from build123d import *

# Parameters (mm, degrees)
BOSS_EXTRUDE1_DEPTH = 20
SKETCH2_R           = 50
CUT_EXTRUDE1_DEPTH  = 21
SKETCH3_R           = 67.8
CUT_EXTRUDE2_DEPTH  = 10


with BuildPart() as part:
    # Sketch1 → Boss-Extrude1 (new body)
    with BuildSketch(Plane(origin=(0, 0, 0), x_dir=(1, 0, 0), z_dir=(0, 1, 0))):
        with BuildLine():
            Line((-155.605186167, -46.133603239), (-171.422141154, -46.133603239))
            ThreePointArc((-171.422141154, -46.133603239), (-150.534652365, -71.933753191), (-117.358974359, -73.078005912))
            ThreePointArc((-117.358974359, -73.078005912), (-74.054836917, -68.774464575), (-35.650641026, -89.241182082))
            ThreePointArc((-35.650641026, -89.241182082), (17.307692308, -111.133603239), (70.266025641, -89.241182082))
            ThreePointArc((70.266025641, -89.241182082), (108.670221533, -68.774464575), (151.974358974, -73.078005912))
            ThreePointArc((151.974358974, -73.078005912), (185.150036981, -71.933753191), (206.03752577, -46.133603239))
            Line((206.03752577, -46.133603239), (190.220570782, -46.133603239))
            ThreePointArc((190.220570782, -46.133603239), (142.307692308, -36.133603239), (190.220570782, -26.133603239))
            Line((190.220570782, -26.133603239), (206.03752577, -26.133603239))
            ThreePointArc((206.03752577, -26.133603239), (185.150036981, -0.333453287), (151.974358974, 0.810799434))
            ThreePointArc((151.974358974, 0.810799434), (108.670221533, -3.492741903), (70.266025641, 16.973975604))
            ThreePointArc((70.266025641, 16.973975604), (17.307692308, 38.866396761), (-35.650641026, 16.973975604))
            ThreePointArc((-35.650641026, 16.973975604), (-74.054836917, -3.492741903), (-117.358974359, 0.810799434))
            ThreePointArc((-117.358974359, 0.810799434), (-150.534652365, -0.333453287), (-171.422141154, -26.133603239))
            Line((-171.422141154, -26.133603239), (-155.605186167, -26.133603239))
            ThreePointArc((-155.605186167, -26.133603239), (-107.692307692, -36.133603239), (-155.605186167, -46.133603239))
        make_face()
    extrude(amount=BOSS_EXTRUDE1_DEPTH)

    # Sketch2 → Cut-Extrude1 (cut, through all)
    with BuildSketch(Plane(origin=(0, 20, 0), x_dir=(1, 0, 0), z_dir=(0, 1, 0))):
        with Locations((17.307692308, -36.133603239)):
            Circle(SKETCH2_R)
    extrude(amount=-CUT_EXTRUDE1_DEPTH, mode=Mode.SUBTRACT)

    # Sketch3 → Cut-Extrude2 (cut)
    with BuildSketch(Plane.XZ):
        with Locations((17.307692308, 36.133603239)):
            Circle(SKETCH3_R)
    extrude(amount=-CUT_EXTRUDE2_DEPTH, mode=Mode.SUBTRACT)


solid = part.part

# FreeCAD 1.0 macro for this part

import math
import FreeCAD as App
import Part
import Sketcher

V = App.Vector

doc = App.newDocument("Part")
body = doc.addObject("PartDesign::Body", "Body")

# Sketch on XZ plane
sketch1 = doc.addObject("Sketcher::SketchObject", "Sketch")
body.addObject(sketch1)
sketch1.AttachmentSupport = (doc.XZ_Plane, [""])
sketch1.MapMode = "FlatFace"
sketch1.addGeometry([
    Part.LineSegment(V(-155.605186, 46.133603, 0), V(-171.422141, 46.133603, 0)),  # 0
    Part.ArcOfCircle(Part.Circle(V(-132.692308, 36.133603, 0), V(0, 0, 1), 40), math.radians(67.45969), math.radians(165.522488)),  # 1
    Part.ArcOfCircle(Part.Circle(V(-88.608974, 142.348761, 0), V(0, 0, 1), 75), math.radians(-112.54031), math.radians(-45.080621)),  # 2
    Part.ArcOfCircle(Part.Circle(V(17.307692, 36.133603, 0), V(0, 0, 1), 75), math.radians(45.080621), math.radians(134.919379)),  # 3
    Part.ArcOfCircle(Part.Circle(V(123.224359, 142.348761, 0), V(0, 0, 1), 75), math.radians(-134.919379), math.radians(-67.45969)),  # 4
    Part.ArcOfCircle(Part.Circle(V(167.307692, 36.133603, 0), V(0, 0, 1), 40), math.radians(14.477512), math.radians(112.54031)),  # 5
    Part.LineSegment(V(206.037526, 46.133603, 0), V(190.220571, 46.133603, 0)),  # 6
    Part.ArcOfCircle(Part.Circle(V(167.307692, 36.133603, 0), V(0, 0, 1), 25), math.radians(23.578178), math.radians(336.421822)),  # 7
    Part.LineSegment(V(190.220571, 26.133603, 0), V(206.037526, 26.133603, 0)),  # 8
    Part.ArcOfCircle(Part.Circle(V(167.307692, 36.133603, 0), V(0, 0, 1), 40), math.radians(-112.54031), math.radians(-14.477512)),  # 9
    Part.ArcOfCircle(Part.Circle(V(123.224359, -70.081554, 0), V(0, 0, 1), 75), math.radians(67.45969), math.radians(134.919379)),  # 10
    Part.ArcOfCircle(Part.Circle(V(17.307692, 36.133603, 0), V(0, 0, 1), 75), math.radians(-134.919379), math.radians(-45.080621)),  # 11
    Part.ArcOfCircle(Part.Circle(V(-88.608974, -70.081554, 0), V(0, 0, 1), 75), math.radians(45.080621), math.radians(112.54031)),  # 12
    Part.ArcOfCircle(Part.Circle(V(-132.692308, 36.133603, 0), V(0, 0, 1), 40), math.radians(-165.522488), math.radians(-67.45969)),  # 13
    Part.LineSegment(V(-171.422141, 26.133603, 0), V(-155.605186, 26.133603, 0)),  # 14
    Part.ArcOfCircle(Part.Circle(V(-132.692308, 36.133603, 0), V(0, 0, 1), 25), math.radians(-156.421822), math.radians(156.421822)),  # 15
], False)
sketch1.addConstraint([
    Sketcher.Constraint("Coincident", 0, 2, 1, 2),
    Sketcher.Constraint("Tangent", 1, 1, 2, 1),
    Sketcher.Constraint("Tangent", 2, 2, 3, 2),
    Sketcher.Constraint("Tangent", 3, 1, 4, 1),
    Sketcher.Constraint("Tangent", 4, 2, 5, 2),
    Sketcher.Constraint("Coincident", 5, 1, 6, 1),
    Sketcher.Constraint("Coincident", 6, 2, 7, 1),
    Sketcher.Constraint("Coincident", 7, 2, 8, 1),
    Sketcher.Constraint("Coincident", 8, 2, 9, 2),
    Sketcher.Constraint("Tangent", 9, 1, 10, 1),
    Sketcher.Constraint("Tangent", 10, 2, 11, 2),
    Sketcher.Constraint("Tangent", 11, 1, 12, 1),
    Sketcher.Constraint("Tangent", 12, 2, 13, 2),
    Sketcher.Constraint("Coincident", 13, 1, 14, 1),
    Sketcher.Constraint("Coincident", 14, 2, 15, 1),
    Sketcher.Constraint("Coincident", 15, 2, 0, 1),
    Sketcher.Constraint("Horizontal", 0),
    Sketcher.Constraint("Horizontal", 6),
    Sketcher.Constraint("Horizontal", 8),
    Sketcher.Constraint("Horizontal", 14),
    Sketcher.Constraint("Coincident", 7, 3, 5, 3),
    Sketcher.Constraint("Coincident", 9, 3, 5, 3),
    Sketcher.Constraint("Coincident", 11, 3, 3, 3),
    Sketcher.Constraint("Coincident", 13, 3, 1, 3),
    Sketcher.Constraint("Coincident", 15, 3, 1, 3),
    Sketcher.Constraint("Equal", 2, 3),
    Sketcher.Constraint("Equal", 3, 4),
    Sketcher.Constraint("Equal", 1, 5),
    Sketcher.Constraint("Equal", 5, 9),
    Sketcher.Constraint("Equal", 4, 10),
    Sketcher.Constraint("Equal", 10, 11),
    Sketcher.Constraint("Equal", 11, 12),
    Sketcher.Constraint("Equal", 9, 13),
    Sketcher.Constraint("Equal", 7, 15),
    Sketcher.Constraint("Horizontal", 1, 3, 3, 3),
    Sketcher.Constraint("Horizontal", 2, 3, 4, 3),
    Sketcher.Constraint("Horizontal", 3, 3, 5, 3),
    Sketcher.Constraint("Horizontal", 0, 2, 5, 1),
    Sketcher.Constraint("Horizontal", 8, 2, 13, 1),
    Sketcher.Constraint("Vertical", 6, 2, 7, 2),
    Sketcher.Constraint("Radius", 1, 40.0),
    Sketcher.Constraint("Radius", 2, 75.0),
    Sketcher.Constraint("Radius", 7, 25.0),
    Sketcher.Constraint("DistanceX", 1, 3, 3, 3, 150.0),
    Sketcher.Constraint("DistanceY", 1, 3, 0, 2, 10.0),
    Sketcher.Constraint("DistanceY", 9, 1, -1, 1, 0.810799),
    Sketcher.Constraint("DistanceX", -1, 1, 4, 3, 123.224359),
])
pad1 = doc.addObject("PartDesign::Pad", "Pad")
body.addObject(pad1)
pad1.Profile = sketch1
pad1.Length = 20
pad1.Reversed = True

# Sketch on XZ plane
sketch2 = doc.addObject("Sketcher::SketchObject", "Sketch001")
body.addObject(sketch2)
sketch2.AttachmentSupport = (doc.XZ_Plane, [""])
sketch2.MapMode = "FlatFace"
sketch2.AttachmentOffset = App.Placement(V(0, 0, -20), App.Rotation())
sketch2.addGeometry(Part.Circle(V(17.307692, 36.133603, 0), V(0, 0, 1), 50), False)
sketch2.addConstraint([
    Sketcher.Constraint("Diameter", 0, 100.0),
    Sketcher.Constraint("DistanceX", -1, 1, 0, 3, 17.307692),
    Sketcher.Constraint("DistanceY", -1, 1, 0, 3, 36.133603),
])
pocket1 = doc.addObject("PartDesign::Pocket", "Pocket")
body.addObject(pocket1)
pocket1.Profile = sketch2
pocket1.Type = "ThroughAll"
pocket1.Reversed = True

# Sketch on XZ plane
sketch3 = doc.addObject("Sketcher::SketchObject", "Sketch002")
body.addObject(sketch3)
sketch3.AttachmentSupport = (doc.XZ_Plane, [""])
sketch3.MapMode = "FlatFace"
sketch3.addGeometry(Part.Circle(V(17.307692, 36.133603, 0), V(0, 0, 1), 67.8), False)
sketch3.addConstraint([
    Sketcher.Constraint("Diameter", 0, 135.6),
    Sketcher.Constraint("DistanceX", -1, 1, 0, 3, 17.307692),
    Sketcher.Constraint("DistanceY", -1, 1, 0, 3, 36.133603),
])
pocket2 = doc.addObject("PartDesign::Pocket", "Pocket001")
body.addObject(pocket2)
pocket2.Profile = sketch3
pocket2.Length = 10

doc.recompute()
